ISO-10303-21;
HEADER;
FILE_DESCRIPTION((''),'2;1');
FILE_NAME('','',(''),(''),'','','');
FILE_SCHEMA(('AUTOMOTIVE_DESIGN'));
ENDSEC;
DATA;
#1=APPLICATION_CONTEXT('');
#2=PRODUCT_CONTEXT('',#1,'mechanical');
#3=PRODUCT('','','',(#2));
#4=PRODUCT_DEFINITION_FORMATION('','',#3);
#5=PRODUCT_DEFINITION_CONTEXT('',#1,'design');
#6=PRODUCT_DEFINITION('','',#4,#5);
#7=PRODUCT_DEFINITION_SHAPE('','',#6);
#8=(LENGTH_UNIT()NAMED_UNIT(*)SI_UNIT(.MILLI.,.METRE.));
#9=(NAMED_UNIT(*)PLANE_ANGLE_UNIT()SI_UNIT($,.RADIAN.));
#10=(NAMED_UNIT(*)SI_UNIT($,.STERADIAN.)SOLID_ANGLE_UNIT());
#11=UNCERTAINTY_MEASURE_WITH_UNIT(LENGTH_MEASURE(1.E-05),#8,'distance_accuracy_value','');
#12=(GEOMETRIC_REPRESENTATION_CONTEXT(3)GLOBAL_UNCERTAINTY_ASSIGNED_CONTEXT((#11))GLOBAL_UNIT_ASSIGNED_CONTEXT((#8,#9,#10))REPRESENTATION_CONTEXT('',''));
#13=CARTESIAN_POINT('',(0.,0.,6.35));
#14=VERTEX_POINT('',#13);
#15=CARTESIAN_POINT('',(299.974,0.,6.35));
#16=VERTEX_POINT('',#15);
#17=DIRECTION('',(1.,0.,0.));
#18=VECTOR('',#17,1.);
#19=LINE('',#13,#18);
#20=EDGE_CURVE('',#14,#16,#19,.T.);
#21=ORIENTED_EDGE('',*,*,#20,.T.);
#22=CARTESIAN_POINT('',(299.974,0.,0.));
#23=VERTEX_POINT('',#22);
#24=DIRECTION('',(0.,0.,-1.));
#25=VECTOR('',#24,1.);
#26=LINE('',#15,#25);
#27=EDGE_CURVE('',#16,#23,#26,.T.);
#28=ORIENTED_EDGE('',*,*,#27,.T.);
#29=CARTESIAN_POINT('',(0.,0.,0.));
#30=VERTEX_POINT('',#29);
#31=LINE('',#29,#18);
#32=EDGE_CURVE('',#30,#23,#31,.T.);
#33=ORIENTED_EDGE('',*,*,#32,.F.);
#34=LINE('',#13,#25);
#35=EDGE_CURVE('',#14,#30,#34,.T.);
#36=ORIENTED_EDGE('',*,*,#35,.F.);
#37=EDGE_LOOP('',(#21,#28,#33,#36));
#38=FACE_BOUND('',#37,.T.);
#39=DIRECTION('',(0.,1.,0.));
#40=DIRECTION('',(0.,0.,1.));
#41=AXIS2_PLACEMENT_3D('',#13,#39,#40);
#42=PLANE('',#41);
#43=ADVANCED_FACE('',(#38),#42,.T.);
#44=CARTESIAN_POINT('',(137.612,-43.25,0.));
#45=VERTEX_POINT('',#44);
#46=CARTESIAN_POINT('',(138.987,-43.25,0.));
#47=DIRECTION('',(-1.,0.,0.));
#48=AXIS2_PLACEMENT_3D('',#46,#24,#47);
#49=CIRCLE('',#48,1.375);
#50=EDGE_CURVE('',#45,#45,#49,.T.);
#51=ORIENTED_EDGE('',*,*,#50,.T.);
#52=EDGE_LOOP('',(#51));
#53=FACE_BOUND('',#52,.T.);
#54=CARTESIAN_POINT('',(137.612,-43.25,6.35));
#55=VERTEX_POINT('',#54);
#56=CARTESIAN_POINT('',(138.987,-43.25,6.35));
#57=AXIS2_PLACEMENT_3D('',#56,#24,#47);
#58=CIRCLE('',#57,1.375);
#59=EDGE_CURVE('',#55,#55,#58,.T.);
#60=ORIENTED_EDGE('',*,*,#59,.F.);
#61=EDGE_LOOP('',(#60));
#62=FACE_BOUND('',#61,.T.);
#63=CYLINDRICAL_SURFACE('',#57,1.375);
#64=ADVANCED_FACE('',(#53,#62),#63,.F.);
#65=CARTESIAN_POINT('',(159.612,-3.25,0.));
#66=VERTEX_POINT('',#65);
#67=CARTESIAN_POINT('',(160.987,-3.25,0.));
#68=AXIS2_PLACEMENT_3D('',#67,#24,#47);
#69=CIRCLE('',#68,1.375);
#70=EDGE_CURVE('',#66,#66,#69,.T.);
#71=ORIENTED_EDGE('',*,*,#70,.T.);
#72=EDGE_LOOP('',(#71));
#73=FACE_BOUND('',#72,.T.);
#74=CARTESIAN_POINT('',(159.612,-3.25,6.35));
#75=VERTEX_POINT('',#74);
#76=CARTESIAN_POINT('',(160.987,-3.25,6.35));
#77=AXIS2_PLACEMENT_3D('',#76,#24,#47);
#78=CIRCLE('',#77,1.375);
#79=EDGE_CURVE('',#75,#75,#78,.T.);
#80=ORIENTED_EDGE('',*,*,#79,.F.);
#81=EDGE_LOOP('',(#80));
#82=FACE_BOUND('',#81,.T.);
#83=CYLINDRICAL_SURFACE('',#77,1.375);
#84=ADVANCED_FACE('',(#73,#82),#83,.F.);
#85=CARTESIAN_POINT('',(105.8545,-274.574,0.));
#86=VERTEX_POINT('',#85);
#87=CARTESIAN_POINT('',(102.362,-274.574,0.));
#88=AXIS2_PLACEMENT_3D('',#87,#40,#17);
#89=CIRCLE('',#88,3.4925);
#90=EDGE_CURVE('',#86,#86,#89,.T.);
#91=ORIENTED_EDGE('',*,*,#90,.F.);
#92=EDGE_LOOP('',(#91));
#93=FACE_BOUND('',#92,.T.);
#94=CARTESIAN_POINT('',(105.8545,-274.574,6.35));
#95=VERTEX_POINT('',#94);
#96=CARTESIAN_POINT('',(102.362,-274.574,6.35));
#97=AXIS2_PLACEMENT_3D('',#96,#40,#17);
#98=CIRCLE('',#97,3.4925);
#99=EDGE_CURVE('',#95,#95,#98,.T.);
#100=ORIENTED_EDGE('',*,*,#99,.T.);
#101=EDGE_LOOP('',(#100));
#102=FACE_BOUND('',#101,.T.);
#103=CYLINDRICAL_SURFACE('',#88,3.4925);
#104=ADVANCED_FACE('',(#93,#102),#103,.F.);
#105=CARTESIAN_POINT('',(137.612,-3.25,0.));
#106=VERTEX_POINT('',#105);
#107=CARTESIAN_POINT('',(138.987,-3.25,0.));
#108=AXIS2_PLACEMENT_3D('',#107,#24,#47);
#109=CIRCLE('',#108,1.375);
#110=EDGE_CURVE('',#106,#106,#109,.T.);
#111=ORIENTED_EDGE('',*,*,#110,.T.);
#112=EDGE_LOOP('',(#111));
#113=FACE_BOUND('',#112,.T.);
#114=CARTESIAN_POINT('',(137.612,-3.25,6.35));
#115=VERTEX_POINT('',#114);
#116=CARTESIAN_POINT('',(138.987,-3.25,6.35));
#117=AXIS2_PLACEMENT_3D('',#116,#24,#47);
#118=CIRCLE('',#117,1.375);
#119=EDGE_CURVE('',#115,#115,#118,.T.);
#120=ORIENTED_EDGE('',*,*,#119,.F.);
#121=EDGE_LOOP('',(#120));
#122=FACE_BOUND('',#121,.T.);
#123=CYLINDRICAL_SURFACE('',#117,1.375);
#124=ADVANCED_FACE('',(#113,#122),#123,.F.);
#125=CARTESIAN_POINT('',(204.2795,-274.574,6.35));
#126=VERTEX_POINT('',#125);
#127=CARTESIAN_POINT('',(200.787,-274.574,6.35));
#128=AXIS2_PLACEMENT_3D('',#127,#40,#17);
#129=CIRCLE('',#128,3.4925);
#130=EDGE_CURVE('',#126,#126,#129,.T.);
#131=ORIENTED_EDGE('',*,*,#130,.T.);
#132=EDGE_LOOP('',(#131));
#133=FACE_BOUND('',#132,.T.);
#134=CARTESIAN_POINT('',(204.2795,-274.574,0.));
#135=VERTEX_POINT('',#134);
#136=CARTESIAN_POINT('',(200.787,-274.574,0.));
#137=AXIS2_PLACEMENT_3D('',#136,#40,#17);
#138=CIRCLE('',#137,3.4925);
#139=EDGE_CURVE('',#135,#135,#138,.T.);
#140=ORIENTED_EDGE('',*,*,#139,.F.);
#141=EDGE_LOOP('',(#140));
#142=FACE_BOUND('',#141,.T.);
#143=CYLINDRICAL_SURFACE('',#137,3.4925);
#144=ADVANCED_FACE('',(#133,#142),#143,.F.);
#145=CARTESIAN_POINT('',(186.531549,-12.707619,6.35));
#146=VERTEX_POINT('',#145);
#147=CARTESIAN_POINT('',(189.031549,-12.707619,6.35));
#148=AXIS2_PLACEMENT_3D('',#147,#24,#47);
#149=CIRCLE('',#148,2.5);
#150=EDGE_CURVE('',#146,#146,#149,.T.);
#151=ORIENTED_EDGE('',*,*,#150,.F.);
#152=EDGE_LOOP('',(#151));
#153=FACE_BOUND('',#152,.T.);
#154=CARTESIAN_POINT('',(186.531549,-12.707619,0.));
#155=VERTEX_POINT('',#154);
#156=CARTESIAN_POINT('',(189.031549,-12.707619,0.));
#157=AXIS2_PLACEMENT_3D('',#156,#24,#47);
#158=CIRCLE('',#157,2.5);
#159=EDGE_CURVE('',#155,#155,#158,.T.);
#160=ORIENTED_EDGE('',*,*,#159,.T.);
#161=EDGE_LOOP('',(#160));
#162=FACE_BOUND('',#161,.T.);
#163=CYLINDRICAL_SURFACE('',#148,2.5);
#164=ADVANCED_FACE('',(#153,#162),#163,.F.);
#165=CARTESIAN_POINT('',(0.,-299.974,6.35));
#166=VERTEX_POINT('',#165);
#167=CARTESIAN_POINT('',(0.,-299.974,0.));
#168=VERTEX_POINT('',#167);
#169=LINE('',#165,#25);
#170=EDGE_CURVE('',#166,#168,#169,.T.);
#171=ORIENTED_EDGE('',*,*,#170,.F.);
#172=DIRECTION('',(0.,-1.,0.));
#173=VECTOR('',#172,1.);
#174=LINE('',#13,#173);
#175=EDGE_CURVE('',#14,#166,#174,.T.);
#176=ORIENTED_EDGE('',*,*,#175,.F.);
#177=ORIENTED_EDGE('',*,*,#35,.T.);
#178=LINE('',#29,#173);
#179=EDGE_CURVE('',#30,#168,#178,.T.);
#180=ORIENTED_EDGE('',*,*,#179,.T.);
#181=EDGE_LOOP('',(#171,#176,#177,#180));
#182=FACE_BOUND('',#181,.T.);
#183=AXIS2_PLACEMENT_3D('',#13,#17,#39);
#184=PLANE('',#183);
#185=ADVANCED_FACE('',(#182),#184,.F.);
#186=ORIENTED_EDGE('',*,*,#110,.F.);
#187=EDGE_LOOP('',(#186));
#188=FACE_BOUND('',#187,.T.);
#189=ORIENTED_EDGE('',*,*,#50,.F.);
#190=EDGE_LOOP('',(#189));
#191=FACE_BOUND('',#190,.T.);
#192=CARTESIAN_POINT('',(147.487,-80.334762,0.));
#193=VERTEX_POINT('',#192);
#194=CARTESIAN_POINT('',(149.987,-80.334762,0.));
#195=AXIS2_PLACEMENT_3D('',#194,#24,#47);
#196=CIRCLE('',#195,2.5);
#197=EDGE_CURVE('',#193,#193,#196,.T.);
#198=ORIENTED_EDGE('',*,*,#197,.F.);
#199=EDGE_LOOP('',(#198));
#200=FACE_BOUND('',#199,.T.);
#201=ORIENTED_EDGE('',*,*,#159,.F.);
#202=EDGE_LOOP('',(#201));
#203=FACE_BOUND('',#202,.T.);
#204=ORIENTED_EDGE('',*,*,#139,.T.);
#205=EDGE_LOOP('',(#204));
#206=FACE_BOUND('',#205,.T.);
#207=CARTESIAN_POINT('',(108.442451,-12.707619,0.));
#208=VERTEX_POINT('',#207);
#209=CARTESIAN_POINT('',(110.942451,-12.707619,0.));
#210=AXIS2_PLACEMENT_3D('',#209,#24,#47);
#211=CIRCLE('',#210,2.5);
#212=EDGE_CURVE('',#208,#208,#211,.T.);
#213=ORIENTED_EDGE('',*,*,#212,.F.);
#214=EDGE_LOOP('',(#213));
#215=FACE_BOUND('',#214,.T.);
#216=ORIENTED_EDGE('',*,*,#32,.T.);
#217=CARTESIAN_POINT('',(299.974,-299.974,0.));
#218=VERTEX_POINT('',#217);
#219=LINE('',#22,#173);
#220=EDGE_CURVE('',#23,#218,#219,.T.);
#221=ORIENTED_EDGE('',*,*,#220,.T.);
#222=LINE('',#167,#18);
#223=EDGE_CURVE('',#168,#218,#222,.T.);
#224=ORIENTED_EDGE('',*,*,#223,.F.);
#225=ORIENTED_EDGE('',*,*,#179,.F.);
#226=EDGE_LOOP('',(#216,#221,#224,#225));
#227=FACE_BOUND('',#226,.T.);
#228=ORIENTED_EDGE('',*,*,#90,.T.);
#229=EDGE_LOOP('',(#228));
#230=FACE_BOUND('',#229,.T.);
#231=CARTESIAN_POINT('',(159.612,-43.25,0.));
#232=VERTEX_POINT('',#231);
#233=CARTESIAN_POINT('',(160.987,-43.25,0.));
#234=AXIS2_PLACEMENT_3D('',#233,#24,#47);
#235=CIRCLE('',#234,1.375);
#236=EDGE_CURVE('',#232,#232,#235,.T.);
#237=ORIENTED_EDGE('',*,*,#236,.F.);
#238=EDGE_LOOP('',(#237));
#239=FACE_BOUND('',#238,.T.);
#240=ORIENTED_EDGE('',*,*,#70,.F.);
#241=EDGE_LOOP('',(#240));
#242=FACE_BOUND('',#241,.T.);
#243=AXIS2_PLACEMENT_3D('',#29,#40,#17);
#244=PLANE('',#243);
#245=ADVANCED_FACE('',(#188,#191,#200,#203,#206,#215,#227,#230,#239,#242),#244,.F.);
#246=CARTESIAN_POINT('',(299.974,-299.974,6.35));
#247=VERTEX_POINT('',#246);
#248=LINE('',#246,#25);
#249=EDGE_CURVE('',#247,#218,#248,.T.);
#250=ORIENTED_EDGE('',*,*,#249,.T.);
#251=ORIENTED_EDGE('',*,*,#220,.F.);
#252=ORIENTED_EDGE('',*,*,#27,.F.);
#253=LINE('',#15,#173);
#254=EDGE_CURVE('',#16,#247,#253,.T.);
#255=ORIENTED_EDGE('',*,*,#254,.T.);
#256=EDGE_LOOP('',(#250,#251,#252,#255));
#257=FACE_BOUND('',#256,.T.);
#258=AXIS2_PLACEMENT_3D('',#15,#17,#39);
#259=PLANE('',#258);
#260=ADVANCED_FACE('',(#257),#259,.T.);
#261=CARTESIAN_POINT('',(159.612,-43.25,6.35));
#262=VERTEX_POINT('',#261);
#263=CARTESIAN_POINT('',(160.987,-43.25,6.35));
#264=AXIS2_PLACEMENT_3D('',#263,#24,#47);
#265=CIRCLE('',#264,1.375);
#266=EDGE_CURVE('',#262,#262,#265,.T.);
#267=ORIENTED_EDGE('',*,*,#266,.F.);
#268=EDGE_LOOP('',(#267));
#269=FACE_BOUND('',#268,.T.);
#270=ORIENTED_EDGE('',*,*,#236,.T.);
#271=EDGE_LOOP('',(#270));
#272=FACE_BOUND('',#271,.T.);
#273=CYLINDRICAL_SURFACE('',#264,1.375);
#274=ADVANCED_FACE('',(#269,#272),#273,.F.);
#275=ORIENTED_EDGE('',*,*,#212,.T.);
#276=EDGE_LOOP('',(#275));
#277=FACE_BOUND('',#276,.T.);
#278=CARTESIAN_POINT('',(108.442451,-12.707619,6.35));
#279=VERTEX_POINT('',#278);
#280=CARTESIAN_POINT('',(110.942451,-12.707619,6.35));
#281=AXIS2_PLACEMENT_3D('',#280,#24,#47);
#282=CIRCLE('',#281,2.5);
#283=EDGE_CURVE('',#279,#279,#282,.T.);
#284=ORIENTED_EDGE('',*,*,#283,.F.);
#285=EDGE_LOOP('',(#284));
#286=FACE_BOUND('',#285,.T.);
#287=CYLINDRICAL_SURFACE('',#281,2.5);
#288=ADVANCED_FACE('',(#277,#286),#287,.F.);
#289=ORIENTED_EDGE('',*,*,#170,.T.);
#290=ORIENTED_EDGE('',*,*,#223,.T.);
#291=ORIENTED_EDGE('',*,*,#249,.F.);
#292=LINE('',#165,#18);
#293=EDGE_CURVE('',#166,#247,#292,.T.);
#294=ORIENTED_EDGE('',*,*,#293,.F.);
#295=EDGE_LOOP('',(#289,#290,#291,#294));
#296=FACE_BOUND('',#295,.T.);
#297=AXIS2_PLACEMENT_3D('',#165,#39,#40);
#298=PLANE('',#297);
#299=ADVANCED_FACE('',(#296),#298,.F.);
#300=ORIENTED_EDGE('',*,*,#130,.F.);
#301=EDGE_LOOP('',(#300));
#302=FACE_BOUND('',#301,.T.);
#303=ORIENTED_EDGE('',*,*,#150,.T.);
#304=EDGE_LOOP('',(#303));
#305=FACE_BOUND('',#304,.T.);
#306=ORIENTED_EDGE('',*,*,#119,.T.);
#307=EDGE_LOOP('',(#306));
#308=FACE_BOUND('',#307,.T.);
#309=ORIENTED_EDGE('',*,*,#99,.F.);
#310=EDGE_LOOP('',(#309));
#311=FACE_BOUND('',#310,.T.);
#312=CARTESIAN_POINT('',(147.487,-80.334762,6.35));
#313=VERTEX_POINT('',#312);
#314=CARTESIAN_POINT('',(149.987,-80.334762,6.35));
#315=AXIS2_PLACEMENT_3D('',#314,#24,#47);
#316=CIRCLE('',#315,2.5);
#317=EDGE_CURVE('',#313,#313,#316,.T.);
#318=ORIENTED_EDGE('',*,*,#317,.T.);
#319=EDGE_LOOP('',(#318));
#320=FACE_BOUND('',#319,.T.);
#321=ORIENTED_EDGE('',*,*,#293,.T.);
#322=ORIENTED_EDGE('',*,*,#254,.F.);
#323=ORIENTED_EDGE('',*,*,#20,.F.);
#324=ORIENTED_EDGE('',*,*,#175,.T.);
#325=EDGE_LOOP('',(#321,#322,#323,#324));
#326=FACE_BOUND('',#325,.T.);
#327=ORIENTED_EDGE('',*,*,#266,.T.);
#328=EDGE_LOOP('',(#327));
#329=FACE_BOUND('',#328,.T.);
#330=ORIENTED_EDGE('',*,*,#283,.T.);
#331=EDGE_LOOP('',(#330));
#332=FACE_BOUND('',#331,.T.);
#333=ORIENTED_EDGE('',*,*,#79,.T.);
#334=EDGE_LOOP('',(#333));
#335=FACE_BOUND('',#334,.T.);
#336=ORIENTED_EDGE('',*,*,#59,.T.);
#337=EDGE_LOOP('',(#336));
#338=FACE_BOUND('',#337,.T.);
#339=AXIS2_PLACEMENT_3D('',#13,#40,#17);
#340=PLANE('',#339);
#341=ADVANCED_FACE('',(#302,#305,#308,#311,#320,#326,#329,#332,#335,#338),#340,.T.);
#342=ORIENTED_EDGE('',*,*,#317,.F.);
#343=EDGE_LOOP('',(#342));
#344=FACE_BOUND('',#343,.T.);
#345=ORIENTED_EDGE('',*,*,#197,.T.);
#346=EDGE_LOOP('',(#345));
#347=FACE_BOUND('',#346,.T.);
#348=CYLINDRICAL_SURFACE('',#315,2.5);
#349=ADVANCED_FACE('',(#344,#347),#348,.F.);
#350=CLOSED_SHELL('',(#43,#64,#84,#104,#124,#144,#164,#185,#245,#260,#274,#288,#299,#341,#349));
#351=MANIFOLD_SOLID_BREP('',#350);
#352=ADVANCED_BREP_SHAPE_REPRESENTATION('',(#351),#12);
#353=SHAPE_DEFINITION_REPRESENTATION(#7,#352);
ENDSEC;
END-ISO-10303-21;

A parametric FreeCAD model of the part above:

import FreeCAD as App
import Part
import Sketcher
Q = App.Units.Quantity


def add_polygon(sketch, points):
    """Adds a closed chain of lines whose ends are joined by coincident constraints."""
    first, n = sketch.GeometryCount, len(points)
    for a, b in zip(points, points[1:] + points[:1]):
        sketch.addGeometry(Part.LineSegment(App.Vector(*a, 0), App.Vector(*b, 0)), False)
    for i in range(n):
        sketch.addConstraint(Sketcher.Constraint("Coincident", first + i, 2, first + (i + 1) % n, 1))

doc = App.newDocument("Part")
body = doc.addObject("PartDesign::Body", "Body")

# Sketch on XY plane
sketch1 = body.newObject("Sketcher::SketchObject", "Sketch")
sketch1.AttachmentSupport = (doc.getObject("XY_Plane"), [""])
sketch1.MapMode = "FlatFace"
add_polygon(sketch1, [(0, 0), (0, -299.974), (299.974, -299.974), (299.974, 0)])  # lines 0-3
sketch1.addConstraint([
    Sketcher.Constraint("Vertical", 0),
    Sketcher.Constraint("Horizontal", 1),
    Sketcher.Constraint("Vertical", 2),
    Sketcher.Constraint("Horizontal", 3),
    Sketcher.Constraint("Coincident", 3, 2, -1, 1),
    Sketcher.Constraint("Equal", 3, 0),
    Sketcher.Constraint("DistanceX", 1, 1, 1, 2, Q("11.81 in")),
])
pad1 = body.newObject("PartDesign::Pad", "Pad")
pad1.Profile = sketch1
pad1.Length = Q("0.25 in")

# Sketch on XY plane
sketch2 = body.newObject("Sketcher::SketchObject", "Sketch001")
sketch2.AttachmentSupport = (doc.getObject("XY_Plane"), [""])
sketch2.MapMode = "FlatFace"
sketch2.addGeometry([
    Part.Circle(App.Vector(160.987, -3.25, 0), App.Vector(0, 0, 1), 1.375),
    Part.Circle(App.Vector(138.987, -3.25, 0), App.Vector(0, 0, 1), 1.375),
    Part.Circle(App.Vector(138.987, -43.25, 0), App.Vector(0, 0, 1), 1.375),
    Part.Circle(App.Vector(160.987, -43.25, 0), App.Vector(0, 0, 1), 1.375),
], False)
sketch2.addConstraint([
    Sketcher.Constraint("Equal", 0, 1),
    Sketcher.Constraint("Equal", 1, 2),
    Sketcher.Constraint("Equal", 2, 3),
    Sketcher.Constraint("Horizontal", 0, 3, 1, 3),
    Sketcher.Constraint("Horizontal", 2, 3, 3, 3),
    Sketcher.Constraint("Vertical", 1, 3, 2, 3),
    Sketcher.Constraint("Vertical", 0, 3, 3, 3),
    Sketcher.Constraint("Diameter", 0, Q("2.75 mm")),
    Sketcher.Constraint("DistanceX", -1, 1, 0, 3, Q("160.987 mm")),
    Sketcher.Constraint("DistanceY", 0, 3, -1, 1, Q("3.25 mm")),
    Sketcher.Constraint("DistanceX", -1, 1, 1, 3, Q("138.987 mm")),
    Sketcher.Constraint("DistanceY", 2, 3, -1, 1, Q("43.25 mm")),
])
pocket1 = body.newObject("PartDesign::Pocket", "Pocket")
pocket1.Profile = sketch2
pocket1.Type = "ThroughAll"
pocket1.Reversed = True

# Sketch on XY plane
sketch3 = body.newObject("Sketcher::SketchObject", "Sketch002")
sketch3.AttachmentSupport = (doc.getObject("XY_Plane"), [""])
sketch3.MapMode = "FlatFace"
sketch3.addGeometry([
    Part.Circle(App.Vector(189.031549, -12.707619, 0), App.Vector(0, 0, 1), 2.5),
    Part.Circle(App.Vector(110.942451, -12.707619, 0), App.Vector(0, 0, 1), 2.5),
    Part.Circle(App.Vector(149.987, -80.334762, 0), App.Vector(0, 0, 1), 2.5),
], False)
sketch3.addConstraint([
    Sketcher.Constraint("Equal", 0, 1),
    Sketcher.Constraint("Equal", 1, 2),
    Sketcher.Constraint("Horizontal", 0, 3, 1, 3),
    Sketcher.Constraint("Diameter", 0, Q("5 mm")),
    Sketcher.Constraint("DistanceX", -1, 1, 2, 3, Q("5.905 in")),
    Sketcher.Constraint("DistanceY", 0, 3, -1, 1, Q("0.5003 in")),
    Sketcher.Constraint("DistanceX", 1, 3, 0, 3, Q("78.089098 mm")),
    Sketcher.Constraint("DistanceX", -1, 1, 0, 3, Q("189.031549 mm")),
    Sketcher.Constraint("DistanceY", 2, 3, -1, 1, Q("80.334762 mm")),
])
pocket2 = body.newObject("PartDesign::Pocket", "Pocket001")
pocket2.Profile = sketch3
pocket2.Type = "ThroughAll"
pocket2.Reversed = True

# Sketch on XY plane
sketch4 = body.newObject("Sketcher::SketchObject", "Sketch003")
sketch4.AttachmentSupport = (doc.getObject("XY_Plane"), [""])
sketch4.MapMode = "FlatFace"
sketch4.AttachmentOffset = App.Placement(App.Vector(0, 0, 0.25 * 25.4), App.Rotation())
sketch4.addGeometry([
    Part.Circle(App.Vector(200.787, -274.574, 0), App.Vector(0, 0, 1), 3.4925),
    Part.Circle(App.Vector(102.362, -274.574, 0), App.Vector(0, 0, 1), 3.4925),
], False)
sketch4.addConstraint([
    Sketcher.Constraint("Equal", 0, 1),
    Sketcher.Constraint("Horizontal", 0, 3, 1, 3),
    Sketcher.Constraint("Diameter", 0, Q("0.275 in")),
    Sketcher.Constraint("DistanceY", 0, 3, -1, 1, Q("10.81 in")),
    Sketcher.Constraint("DistanceX", -1, 1, 1, 3, Q("4.03 in")),
    Sketcher.Constraint("DistanceX", -1, 1, 0, 3, Q("7.905 in")),
])
pocket3 = body.newObject("PartDesign::Pocket", "Pocket002")
pocket3.Profile = sketch4
pocket3.Type = "ThroughAll"

doc.recompute()
